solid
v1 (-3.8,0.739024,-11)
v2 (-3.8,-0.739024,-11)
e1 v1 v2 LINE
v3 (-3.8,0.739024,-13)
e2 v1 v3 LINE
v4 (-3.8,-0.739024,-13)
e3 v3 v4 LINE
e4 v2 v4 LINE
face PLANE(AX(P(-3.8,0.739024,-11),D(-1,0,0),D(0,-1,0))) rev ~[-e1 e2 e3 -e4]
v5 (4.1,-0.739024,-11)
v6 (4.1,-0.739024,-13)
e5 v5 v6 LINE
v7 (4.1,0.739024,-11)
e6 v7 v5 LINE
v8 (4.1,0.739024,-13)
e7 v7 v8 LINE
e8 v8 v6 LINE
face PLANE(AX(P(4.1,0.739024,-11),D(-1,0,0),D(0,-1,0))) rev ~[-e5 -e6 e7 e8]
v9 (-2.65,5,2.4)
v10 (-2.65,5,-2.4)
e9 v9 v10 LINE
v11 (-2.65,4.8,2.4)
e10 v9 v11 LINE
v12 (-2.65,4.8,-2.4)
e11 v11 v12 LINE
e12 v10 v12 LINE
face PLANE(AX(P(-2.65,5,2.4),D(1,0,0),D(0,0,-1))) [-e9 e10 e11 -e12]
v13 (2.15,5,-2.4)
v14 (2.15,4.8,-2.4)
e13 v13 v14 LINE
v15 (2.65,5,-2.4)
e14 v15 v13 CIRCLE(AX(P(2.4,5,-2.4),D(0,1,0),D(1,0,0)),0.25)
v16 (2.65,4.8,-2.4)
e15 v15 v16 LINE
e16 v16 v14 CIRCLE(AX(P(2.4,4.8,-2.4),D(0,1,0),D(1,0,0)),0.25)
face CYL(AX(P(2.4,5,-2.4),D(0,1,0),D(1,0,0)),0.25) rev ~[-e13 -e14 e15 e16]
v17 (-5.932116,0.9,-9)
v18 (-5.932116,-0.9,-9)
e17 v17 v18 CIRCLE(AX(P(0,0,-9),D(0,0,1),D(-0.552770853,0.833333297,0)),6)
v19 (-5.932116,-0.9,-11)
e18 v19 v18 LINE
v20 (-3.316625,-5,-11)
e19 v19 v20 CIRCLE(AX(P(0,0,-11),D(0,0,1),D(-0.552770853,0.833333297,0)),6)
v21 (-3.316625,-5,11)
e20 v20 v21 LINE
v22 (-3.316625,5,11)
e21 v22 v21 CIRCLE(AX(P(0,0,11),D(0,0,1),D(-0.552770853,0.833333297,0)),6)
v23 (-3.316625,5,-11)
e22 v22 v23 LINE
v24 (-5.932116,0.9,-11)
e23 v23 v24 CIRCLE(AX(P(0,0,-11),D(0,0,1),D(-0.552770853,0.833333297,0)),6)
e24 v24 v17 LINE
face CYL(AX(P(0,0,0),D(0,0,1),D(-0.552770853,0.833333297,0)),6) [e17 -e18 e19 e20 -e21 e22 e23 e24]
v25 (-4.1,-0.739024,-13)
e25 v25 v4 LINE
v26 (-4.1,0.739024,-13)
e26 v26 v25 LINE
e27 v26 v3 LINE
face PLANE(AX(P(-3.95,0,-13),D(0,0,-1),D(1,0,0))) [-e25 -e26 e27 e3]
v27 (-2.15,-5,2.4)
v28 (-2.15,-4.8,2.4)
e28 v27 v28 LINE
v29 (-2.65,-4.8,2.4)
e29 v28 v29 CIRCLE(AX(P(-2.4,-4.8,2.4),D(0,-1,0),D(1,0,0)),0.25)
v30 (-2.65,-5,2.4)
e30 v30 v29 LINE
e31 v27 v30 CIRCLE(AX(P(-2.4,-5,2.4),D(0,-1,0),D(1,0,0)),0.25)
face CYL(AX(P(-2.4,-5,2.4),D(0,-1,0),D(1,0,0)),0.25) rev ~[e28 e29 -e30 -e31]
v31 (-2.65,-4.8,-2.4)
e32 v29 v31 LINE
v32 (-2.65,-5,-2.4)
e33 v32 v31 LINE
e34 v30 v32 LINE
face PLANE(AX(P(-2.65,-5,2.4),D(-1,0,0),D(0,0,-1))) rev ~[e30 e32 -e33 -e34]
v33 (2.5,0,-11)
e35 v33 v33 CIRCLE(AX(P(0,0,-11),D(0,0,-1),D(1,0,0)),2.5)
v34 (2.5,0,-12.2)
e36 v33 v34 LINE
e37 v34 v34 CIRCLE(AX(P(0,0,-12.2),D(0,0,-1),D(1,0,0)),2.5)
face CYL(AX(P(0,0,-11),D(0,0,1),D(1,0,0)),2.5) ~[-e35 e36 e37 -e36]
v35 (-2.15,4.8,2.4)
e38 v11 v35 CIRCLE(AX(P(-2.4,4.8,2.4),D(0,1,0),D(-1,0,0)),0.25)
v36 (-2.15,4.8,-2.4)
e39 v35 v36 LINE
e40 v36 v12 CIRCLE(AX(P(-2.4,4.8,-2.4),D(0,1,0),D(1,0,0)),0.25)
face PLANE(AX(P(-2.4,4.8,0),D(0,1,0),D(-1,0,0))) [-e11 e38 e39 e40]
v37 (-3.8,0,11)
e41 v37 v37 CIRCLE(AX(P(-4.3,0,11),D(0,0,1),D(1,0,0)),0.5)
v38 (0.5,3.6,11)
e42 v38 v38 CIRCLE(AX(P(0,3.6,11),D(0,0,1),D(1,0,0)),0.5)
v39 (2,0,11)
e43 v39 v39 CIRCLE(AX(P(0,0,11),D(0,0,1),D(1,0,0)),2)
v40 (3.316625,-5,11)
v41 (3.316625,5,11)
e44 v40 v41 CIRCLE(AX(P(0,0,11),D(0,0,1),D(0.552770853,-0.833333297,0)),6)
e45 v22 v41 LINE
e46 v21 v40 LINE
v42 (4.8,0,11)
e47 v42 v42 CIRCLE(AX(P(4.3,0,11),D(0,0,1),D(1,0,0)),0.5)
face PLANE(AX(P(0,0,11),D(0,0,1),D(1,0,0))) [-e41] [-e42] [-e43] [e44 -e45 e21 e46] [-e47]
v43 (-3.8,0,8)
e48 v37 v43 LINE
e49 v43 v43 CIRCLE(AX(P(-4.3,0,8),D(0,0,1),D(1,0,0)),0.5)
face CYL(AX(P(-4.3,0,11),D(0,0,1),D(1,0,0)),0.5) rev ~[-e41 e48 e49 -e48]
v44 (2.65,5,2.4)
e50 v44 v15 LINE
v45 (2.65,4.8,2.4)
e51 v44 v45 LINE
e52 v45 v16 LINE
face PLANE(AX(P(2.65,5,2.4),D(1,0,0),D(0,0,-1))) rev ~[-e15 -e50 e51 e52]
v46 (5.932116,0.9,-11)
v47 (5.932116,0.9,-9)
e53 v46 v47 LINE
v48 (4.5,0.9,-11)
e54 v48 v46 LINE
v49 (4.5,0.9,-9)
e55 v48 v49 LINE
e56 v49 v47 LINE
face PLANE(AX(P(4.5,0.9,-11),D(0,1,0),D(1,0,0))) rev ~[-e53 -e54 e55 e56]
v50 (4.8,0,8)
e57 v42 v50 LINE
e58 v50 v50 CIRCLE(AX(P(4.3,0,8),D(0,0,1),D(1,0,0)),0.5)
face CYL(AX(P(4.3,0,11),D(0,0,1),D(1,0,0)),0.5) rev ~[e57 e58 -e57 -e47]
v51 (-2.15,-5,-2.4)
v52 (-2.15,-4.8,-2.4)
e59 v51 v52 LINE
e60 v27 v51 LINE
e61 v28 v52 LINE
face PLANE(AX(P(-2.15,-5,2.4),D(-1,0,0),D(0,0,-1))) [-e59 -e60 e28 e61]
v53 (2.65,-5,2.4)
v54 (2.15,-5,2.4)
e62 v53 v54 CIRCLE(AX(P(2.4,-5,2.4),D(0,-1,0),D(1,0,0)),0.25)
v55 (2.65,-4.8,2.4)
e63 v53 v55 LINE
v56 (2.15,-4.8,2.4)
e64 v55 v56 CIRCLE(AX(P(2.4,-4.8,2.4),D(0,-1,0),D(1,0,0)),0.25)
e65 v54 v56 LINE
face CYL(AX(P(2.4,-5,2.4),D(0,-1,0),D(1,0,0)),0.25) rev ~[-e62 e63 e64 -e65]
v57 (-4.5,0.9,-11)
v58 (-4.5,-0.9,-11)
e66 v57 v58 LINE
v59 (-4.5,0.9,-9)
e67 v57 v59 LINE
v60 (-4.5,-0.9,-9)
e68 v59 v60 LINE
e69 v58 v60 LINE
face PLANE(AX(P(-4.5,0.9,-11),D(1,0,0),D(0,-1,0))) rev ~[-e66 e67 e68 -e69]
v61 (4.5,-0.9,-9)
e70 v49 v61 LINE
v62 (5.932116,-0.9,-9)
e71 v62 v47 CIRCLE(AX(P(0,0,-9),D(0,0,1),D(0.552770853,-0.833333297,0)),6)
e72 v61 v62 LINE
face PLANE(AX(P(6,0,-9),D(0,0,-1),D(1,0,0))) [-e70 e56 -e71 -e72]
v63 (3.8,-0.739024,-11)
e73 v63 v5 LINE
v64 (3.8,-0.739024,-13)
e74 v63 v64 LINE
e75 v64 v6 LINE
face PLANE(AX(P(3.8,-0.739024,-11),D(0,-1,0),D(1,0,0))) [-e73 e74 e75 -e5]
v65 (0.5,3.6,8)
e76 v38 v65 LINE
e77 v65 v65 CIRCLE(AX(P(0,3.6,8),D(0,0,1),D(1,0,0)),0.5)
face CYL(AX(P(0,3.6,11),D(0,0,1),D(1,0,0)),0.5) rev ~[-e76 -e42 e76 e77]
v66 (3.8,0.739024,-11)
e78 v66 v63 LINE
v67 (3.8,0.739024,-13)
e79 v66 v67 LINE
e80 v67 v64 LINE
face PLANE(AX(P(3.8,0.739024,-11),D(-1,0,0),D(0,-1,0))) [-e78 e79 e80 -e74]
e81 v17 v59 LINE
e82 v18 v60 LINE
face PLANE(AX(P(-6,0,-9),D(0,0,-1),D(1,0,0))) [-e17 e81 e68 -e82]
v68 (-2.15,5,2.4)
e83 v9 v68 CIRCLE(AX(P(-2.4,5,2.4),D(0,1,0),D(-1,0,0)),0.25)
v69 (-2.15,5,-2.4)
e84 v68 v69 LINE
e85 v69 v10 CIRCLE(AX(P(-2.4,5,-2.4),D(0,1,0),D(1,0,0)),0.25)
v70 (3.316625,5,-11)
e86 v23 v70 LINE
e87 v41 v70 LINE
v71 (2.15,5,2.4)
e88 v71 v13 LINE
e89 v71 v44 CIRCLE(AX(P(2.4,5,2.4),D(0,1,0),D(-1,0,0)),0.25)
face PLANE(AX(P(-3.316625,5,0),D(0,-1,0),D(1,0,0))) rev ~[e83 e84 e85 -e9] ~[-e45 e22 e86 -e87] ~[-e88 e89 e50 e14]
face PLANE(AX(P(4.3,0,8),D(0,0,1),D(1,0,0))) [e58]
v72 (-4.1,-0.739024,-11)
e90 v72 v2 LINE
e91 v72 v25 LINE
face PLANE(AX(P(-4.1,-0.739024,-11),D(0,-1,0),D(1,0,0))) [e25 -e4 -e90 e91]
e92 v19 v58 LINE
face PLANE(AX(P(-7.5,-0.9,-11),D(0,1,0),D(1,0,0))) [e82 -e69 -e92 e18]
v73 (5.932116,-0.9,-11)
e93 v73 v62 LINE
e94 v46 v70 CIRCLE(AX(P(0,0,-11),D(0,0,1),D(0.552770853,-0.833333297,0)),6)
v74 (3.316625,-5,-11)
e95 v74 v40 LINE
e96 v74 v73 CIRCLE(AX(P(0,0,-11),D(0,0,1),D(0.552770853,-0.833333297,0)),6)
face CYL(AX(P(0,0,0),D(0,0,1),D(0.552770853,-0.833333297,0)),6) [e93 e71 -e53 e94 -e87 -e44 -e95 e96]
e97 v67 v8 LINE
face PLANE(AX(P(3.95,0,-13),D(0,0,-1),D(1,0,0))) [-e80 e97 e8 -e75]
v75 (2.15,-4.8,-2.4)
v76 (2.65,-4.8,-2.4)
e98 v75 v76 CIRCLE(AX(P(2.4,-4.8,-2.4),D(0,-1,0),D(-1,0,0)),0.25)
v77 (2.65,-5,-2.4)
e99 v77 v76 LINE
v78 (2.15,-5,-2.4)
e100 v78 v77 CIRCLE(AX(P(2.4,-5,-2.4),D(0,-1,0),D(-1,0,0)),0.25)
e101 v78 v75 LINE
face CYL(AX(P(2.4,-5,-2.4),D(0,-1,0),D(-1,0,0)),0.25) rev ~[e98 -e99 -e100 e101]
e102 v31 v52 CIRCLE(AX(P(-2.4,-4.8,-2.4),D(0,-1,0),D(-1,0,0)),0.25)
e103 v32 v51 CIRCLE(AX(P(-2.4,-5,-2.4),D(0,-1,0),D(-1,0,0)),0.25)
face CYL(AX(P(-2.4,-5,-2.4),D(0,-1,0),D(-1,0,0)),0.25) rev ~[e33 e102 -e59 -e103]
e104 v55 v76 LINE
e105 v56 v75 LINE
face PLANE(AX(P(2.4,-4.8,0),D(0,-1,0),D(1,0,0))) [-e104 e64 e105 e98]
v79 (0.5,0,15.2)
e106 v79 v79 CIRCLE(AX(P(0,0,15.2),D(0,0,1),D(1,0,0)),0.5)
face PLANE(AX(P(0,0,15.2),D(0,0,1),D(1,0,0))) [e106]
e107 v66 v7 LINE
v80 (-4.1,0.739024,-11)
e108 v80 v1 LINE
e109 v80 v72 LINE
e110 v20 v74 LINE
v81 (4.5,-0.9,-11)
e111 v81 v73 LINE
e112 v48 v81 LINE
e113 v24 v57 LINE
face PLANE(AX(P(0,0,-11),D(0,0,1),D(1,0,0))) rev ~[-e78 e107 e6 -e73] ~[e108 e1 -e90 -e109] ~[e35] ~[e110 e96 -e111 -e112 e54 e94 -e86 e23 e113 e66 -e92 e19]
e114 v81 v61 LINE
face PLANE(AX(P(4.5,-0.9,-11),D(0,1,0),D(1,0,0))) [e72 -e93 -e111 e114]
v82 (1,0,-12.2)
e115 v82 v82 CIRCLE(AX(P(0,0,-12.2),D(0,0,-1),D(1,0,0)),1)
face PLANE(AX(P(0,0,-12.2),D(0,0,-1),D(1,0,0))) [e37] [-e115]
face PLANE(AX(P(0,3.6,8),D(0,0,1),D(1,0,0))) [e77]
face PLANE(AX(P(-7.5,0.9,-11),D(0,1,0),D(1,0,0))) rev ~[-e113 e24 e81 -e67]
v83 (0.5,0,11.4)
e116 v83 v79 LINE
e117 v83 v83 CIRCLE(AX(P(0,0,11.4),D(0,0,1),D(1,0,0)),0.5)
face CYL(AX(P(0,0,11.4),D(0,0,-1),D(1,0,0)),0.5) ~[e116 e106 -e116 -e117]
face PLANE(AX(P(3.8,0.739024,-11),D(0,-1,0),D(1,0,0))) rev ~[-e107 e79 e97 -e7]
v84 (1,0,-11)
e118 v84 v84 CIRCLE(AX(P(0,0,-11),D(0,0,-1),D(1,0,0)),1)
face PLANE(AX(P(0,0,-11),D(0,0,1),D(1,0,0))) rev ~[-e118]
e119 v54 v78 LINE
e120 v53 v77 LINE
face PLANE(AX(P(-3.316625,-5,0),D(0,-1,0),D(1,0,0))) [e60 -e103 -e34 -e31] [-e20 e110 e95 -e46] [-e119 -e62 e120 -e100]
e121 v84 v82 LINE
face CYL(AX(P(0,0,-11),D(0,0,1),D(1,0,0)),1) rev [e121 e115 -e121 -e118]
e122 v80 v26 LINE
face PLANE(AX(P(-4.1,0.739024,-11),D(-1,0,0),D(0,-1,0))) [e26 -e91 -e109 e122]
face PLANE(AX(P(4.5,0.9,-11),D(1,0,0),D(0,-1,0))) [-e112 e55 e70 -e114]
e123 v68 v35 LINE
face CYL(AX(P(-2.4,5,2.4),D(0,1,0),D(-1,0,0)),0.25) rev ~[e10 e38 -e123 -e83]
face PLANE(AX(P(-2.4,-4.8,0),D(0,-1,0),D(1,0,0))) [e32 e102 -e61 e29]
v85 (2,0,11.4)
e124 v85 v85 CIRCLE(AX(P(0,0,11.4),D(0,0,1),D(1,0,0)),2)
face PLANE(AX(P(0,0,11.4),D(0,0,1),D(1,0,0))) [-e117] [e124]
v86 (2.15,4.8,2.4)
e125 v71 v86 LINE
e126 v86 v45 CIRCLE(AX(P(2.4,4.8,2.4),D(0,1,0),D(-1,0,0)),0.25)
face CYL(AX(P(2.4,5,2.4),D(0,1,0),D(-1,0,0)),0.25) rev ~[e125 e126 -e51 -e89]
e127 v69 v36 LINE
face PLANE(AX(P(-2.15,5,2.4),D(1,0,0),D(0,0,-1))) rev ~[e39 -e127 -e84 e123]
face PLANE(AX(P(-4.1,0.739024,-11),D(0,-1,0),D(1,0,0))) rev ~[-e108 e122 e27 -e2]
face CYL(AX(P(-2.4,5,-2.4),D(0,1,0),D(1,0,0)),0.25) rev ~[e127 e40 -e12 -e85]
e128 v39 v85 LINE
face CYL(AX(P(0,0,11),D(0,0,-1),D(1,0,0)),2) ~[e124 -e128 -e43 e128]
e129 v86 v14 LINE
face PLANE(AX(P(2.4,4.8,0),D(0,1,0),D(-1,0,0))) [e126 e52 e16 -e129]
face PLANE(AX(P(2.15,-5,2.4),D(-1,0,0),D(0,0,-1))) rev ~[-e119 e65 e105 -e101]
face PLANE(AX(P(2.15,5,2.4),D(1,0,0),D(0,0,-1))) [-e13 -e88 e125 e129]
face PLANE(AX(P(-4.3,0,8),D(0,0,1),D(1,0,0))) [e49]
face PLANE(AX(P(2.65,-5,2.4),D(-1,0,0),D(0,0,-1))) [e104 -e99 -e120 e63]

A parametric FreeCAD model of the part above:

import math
import FreeCAD as App
import Part
import Sketcher

V = App.Vector
Q = App.Units.Quantity


def add_polygon(sketch, points):
    """Adds a closed chain of lines whose ends are joined by coincident constraints."""
    first, n = sketch.GeometryCount, len(points)
    for a, b in zip(points, points[1:] + points[:1]):
        sketch.addGeometry(Part.LineSegment(App.Vector(*a, 0), App.Vector(*b, 0)), False)
    for i in range(n):
        sketch.addConstraint(Sketcher.Constraint("Coincident", first + i, 2, first + (i + 1) % n, 1))

doc = App.newDocument("Part")
body = doc.addObject("PartDesign::Body", "Body")

# Sketch on XY plane
sketch1 = doc.addObject("Sketcher::SketchObject", "Sketch")
body.addObject(sketch1)
sketch1.AttachmentSupport = (doc.XY_Plane, [""])
sketch1.MapMode = "FlatFace"
sketch1.addGeometry([
    Part.ArcOfCircle(Part.Circle(V(0, 0, 0), V(0, 0, 1), 6), math.radians(124), math.radians(236)),
    Part.LineSegment(V(-3, -5, 0), V(3, -5, 0)),
    Part.ArcOfCircle(Part.Circle(V(0, 0, 0), V(0, 0, 1), 6), math.radians(-56), math.radians(56)),
    Part.LineSegment(V(3, 5, 0), V(-3, 5, 0)),
], False)
sketch1.addConstraint([
    Sketcher.Constraint("Coincident", 0, 2, 1, 1),
    Sketcher.Constraint("Coincident", 1, 2, 2, 1),
    Sketcher.Constraint("Coincident", 2, 2, 3, 1),
    Sketcher.Constraint("Coincident", 3, 2, 0, 1),
    Sketcher.Constraint("Horizontal", 1),
    Sketcher.Constraint("Horizontal", 3),
    Sketcher.Constraint("Coincident", 0, 3, -1, 1),
    Sketcher.Constraint("Coincident", 2, 3, -1, 1),
    Sketcher.Constraint("Equal", 0, 2),
    Sketcher.Constraint("Vertical", 1, 2, 2, 2),
    Sketcher.Constraint("Radius", 0, Q("6 mm")),
    Sketcher.Constraint("DistanceY", 0, 2, -1, 1, Q("5 mm")),
])
pad1 = doc.addObject("PartDesign::Pad", "Pad")
body.addObject(pad1)
pad1.Profile = sketch1
pad1.Length = 22
pad1.Midplane = True

# Sketch on XY plane
sketch2 = doc.addObject("Sketcher::SketchObject", "Sketch001")
body.addObject(sketch2)
sketch2.AttachmentSupport = (doc.XY_Plane, [""])
sketch2.MapMode = "FlatFace"
sketch2.AttachmentOffset = App.Placement(V(0, 0, 11), App.Rotation())
sketch2.addGeometry(Part.Circle(V(0, 0, 0), V(0, 0, 1), 2), False)
sketch2.addConstraint([
    Sketcher.Constraint("Coincident", 0, 3, -1, 1),
    Sketcher.Constraint("Diameter", 0, Q("4 mm")),
])
pad2 = doc.addObject("PartDesign::Pad", "Pad001")
body.addObject(pad2)
pad2.Profile = sketch2
pad2.Length = 0.4

# Sketch on XY plane
sketch3 = doc.addObject("Sketcher::SketchObject", "Sketch002")
body.addObject(sketch3)
sketch3.AttachmentSupport = (doc.XY_Plane, [""])
sketch3.MapMode = "FlatFace"
sketch3.AttachmentOffset = App.Placement(V(0, 0, 11.4), App.Rotation())
sketch3.addGeometry(Part.Circle(V(0, 0, 0), V(0, 0, 1), 0.5), False)
sketch3.addConstraint([
    Sketcher.Constraint("Coincident", 0, 3, -1, 1),
    Sketcher.Constraint("Diameter", 0, Q("1 mm")),
])
pad3 = doc.addObject("PartDesign::Pad", "Pad002")
body.addObject(pad3)
pad3.Profile = sketch3
pad3.Length = 3.8

# Sketch on XY plane
sketch4 = doc.addObject("Sketcher::SketchObject", "Sketch003")
body.addObject(sketch4)
sketch4.AttachmentSupport = (doc.XY_Plane, [""])
sketch4.MapMode = "FlatFace"
sketch4.AttachmentOffset = App.Placement(V(0, 0, 11), App.Rotation())
sketch4.addGeometry([
    Part.Circle(V(0, 3.6, 0), V(0, 0, 1), 0.5),
    Part.Circle(V(-4.3, 0, 0), V(0, 0, 1), 0.5),
    Part.Circle(V(4.3, 0, 0), V(0, 0, 1), 0.5),
], False)
sketch4.addConstraint([
    Sketcher.Constraint("Equal", 0, 1),
    Sketcher.Constraint("Equal", 1, 2),
    Sketcher.Constraint("Symmetric", 1, 3, 2, 3, -1, 1),
    Sketcher.Constraint("PointOnObject", 0, 3, -2),
    Sketcher.Constraint("PointOnObject", 1, 3, -1),
    Sketcher.Constraint("Diameter", 0, Q("1 mm")),
    Sketcher.Constraint("DistanceY", -1, 1, 0, 3, Q("3.6 mm")),
    Sketcher.Constraint("DistanceX", 1, 3, -1, 1, Q("4.3 mm")),
])
pocket1 = doc.addObject("PartDesign::Pocket", "Pocket")
body.addObject(pocket1)
pocket1.Profile = sketch4
pocket1.Length = 3

# Sketch on XY plane
sketch5 = doc.addObject("Sketcher::SketchObject", "Sketch004")
body.addObject(sketch5)
sketch5.AttachmentSupport = (doc.XY_Plane, [""])
sketch5.MapMode = "FlatFace"
sketch5.AttachmentOffset = App.Placement(V(0, 0, -11), App.Rotation())
sketch5.addGeometry([
    Part.Circle(V(0, 0, 0), V(0, 0, 1), 2.5),
    Part.Circle(V(0, 0, 0), V(0, 0, 1), 1),
], False)
sketch5.addConstraint([
    Sketcher.Constraint("Coincident", 0, 3, -1, 1),
    Sketcher.Constraint("Coincident", 1, 3, -1, 1),
    Sketcher.Constraint("Diameter", 0, Q("5 mm")),
    Sketcher.Constraint("Diameter", 1, Q("2 mm")),
])
pad4 = doc.addObject("PartDesign::Pad", "Pad003")
body.addObject(pad4)
pad4.Profile = sketch5
pad4.Length = 1.2
pad4.Reversed = True

# Sketch on XY plane
sketch6 = doc.addObject("Sketcher::SketchObject", "Sketch005")
body.addObject(sketch6)
sketch6.AttachmentSupport = (doc.XY_Plane, [""])
sketch6.MapMode = "FlatFace"
sketch6.AttachmentOffset = App.Placement(V(0, 0, -11), App.Rotation())
add_polygon(sketch6, [(-7.5, -0.9), (-7.5, 0.9), (-4.5, 0.9), (-4.5, -0.9)])  # lines 0-3
add_polygon(sketch6, [(4.5, -0.9), (4.5, 0.9), (7.5, 0.9), (7.5, -0.9)])  # lines 4-7
sketch6.addConstraint([
    Sketcher.Constraint("Vertical", 0),
    Sketcher.Constraint("Horizontal", 1),
    Sketcher.Constraint("Vertical", 2),
    Sketcher.Constraint("Horizontal", 3),
    Sketcher.Constraint("Vertical", 4),
    Sketcher.Constraint("Horizontal", 5),
    Sketcher.Constraint("Vertical", 6),
    Sketcher.Constraint("Horizontal", 7),
    Sketcher.Constraint("Symmetric", 2, 2, 4, 2, -1, 1),
    Sketcher.Constraint("Symmetric", 0, 2, 6, 2, -1, 1),
    Sketcher.Constraint("Horizontal", 1, 2, 4, 2),
    Sketcher.Constraint("DistanceX", 1, 1, 1, 2, Q("3 mm")),
    Sketcher.Constraint("DistanceY", 0, 1, 0, 2, Q("1.8 mm")),
    Sketcher.Constraint("DistanceX", 1, 2, 4, 2, Q("9 mm")),
])
pocket2 = doc.addObject("PartDesign::Pocket", "Pocket001")
body.addObject(pocket2)
pocket2.Profile = sketch6
pocket2.Length = 2
pocket2.Reversed = True

# Sketch on XY plane
sketch7 = doc.addObject("Sketcher::SketchObject", "Sketch006")
body.addObject(sketch7)
sketch7.AttachmentSupport = (doc.XY_Plane, [""])
sketch7.MapMode = "FlatFace"
sketch7.AttachmentOffset = App.Placement(V(0, 0, -11), App.Rotation())
add_polygon(sketch7, [(-4.1, -0.74), (-4.1, 0.74), (-3.8, 0.74), (-3.8, -0.74)])  # lines 0-3
add_polygon(sketch7, [(3.8, -0.74), (3.8, 0.74), (4.1, 0.74), (4.1, -0.74)])  # lines 4-7
sketch7.addConstraint([
    Sketcher.Constraint("Vertical", 0),
    Sketcher.Constraint("Horizontal", 1),
    Sketcher.Constraint("Vertical", 2),
    Sketcher.Constraint("Horizontal", 3),
    Sketcher.Constraint("Vertical", 4),
    Sketcher.Constraint("Horizontal", 5),
    Sketcher.Constraint("Vertical", 6),
    Sketcher.Constraint("Horizontal", 7),
    Sketcher.Constraint("Symmetric", 2, 2, 4, 2, -1, 1),
    Sketcher.Constraint("Symmetric", 0, 2, 6, 2, -1, 1),
    Sketcher.Constraint("Horizontal", 1, 2, 4, 2),
    Sketcher.Constraint("DistanceX", 1, 1, 1, 2, Q("0.3 mm")),
    Sketcher.Constraint("DistanceX", 0, 2, -1, 1, Q("4.1 mm")),
    Sketcher.Constraint("DistanceY", 0, 1, 0, 2, Q("1.478048 mm")),
])
pad5 = doc.addObject("PartDesign::Pad", "Pad004")
body.addObject(pad5)
pad5.Profile = sketch7
pad5.Length = 2
pad5.Reversed = True

# Sketch on XZ plane
sketch8 = doc.addObject("Sketcher::SketchObject", "Sketch007")
body.addObject(sketch8)
sketch8.AttachmentSupport = (doc.XZ_Plane, [""])
sketch8.MapMode = "FlatFace"
sketch8.AttachmentOffset = App.Placement(V(0, 0, 5), App.Rotation())
sketch8.addGeometry([
    Part.ArcOfCircle(Part.Circle(V(-2.4, 2.4, 0), V(0, 0, 1), 0.25), math.radians(0), math.radians(180)),  # 0
    Part.LineSegment(V(-2.65, 2.4, 0), V(-2.65, -2.4, 0)),  # 1
    Part.ArcOfCircle(Part.Circle(V(-2.4, -2.4, 0), V(0, 0, 1), 0.25), math.radians(180), math.radians(360)),  # 2
    Part.LineSegment(V(-2.15, -2.4, 0), V(-2.15, 2.4, 0)),  # 3
    Part.ArcOfCircle(Part.Circle(V(2.4, 2.4, 0), V(0, 0, 1), 0.25), math.radians(0), math.radians(180)),  # 4
    Part.LineSegment(V(2.15, 2.4, 0), V(2.15, -2.4, 0)),  # 5
    Part.ArcOfCircle(Part.Circle(V(2.4, -2.4, 0), V(0, 0, 1), 0.25), math.radians(180), math.radians(360)),  # 6
    Part.LineSegment(V(2.65, -2.4, 0), V(2.65, 2.4, 0)),  # 7
], False)
sketch8.addConstraint([
    Sketcher.Constraint("Tangent", 0, 2, 1, 1),
    Sketcher.Constraint("Tangent", 1, 2, 2, 1),
    Sketcher.Constraint("Tangent", 2, 2, 3, 1),
    Sketcher.Constraint("Tangent", 3, 2, 0, 1),
    Sketcher.Constraint("Tangent", 4, 2, 5, 1),
    Sketcher.Constraint("Tangent", 5, 2, 6, 1),
    Sketcher.Constraint("Tangent", 6, 2, 7, 1),
    Sketcher.Constraint("Tangent", 7, 2, 4, 1),
    Sketcher.Constraint("Vertical", 1),
    Sketcher.Constraint("Vertical", 3),
    Sketcher.Constraint("Vertical", 5),
    Sketcher.Constraint("Vertical", 7),
    Sketcher.Constraint("Equal", 2, 4),
    Sketcher.Constraint("Symmetric", 2, 3, 4, 3, -1, 1),
    Sketcher.Constraint("Horizontal", 0, 3, 4, 3),
    Sketcher.Constraint("Horizontal", 2, 3, 6, 3),
    Sketcher.Constraint("Radius", 0, Q("0.25 mm")),
    Sketcher.Constraint("DistanceY", 1, 2, 1, 1, Q("4.8 mm")),
    Sketcher.Constraint("DistanceX", 0, 3, -1, 1, Q("2.4 mm")),
])
pocket3 = doc.addObject("PartDesign::Pocket", "Pocket002")
body.addObject(pocket3)
pocket3.Profile = sketch8
pocket3.Length = 0.2
doc.recompute()

polarpattern = doc.addObject("PartDesign::PolarPattern", "PolarPattern")
body.addObject(polarpattern)
polarpattern.Originals = [pocket3]
polarpattern.Axis = (doc.Z_Axis, [""])
polarpattern.Angle = 360
polarpattern.Occurrences = 2
body.Tip = polarpattern

doc.recompute()
